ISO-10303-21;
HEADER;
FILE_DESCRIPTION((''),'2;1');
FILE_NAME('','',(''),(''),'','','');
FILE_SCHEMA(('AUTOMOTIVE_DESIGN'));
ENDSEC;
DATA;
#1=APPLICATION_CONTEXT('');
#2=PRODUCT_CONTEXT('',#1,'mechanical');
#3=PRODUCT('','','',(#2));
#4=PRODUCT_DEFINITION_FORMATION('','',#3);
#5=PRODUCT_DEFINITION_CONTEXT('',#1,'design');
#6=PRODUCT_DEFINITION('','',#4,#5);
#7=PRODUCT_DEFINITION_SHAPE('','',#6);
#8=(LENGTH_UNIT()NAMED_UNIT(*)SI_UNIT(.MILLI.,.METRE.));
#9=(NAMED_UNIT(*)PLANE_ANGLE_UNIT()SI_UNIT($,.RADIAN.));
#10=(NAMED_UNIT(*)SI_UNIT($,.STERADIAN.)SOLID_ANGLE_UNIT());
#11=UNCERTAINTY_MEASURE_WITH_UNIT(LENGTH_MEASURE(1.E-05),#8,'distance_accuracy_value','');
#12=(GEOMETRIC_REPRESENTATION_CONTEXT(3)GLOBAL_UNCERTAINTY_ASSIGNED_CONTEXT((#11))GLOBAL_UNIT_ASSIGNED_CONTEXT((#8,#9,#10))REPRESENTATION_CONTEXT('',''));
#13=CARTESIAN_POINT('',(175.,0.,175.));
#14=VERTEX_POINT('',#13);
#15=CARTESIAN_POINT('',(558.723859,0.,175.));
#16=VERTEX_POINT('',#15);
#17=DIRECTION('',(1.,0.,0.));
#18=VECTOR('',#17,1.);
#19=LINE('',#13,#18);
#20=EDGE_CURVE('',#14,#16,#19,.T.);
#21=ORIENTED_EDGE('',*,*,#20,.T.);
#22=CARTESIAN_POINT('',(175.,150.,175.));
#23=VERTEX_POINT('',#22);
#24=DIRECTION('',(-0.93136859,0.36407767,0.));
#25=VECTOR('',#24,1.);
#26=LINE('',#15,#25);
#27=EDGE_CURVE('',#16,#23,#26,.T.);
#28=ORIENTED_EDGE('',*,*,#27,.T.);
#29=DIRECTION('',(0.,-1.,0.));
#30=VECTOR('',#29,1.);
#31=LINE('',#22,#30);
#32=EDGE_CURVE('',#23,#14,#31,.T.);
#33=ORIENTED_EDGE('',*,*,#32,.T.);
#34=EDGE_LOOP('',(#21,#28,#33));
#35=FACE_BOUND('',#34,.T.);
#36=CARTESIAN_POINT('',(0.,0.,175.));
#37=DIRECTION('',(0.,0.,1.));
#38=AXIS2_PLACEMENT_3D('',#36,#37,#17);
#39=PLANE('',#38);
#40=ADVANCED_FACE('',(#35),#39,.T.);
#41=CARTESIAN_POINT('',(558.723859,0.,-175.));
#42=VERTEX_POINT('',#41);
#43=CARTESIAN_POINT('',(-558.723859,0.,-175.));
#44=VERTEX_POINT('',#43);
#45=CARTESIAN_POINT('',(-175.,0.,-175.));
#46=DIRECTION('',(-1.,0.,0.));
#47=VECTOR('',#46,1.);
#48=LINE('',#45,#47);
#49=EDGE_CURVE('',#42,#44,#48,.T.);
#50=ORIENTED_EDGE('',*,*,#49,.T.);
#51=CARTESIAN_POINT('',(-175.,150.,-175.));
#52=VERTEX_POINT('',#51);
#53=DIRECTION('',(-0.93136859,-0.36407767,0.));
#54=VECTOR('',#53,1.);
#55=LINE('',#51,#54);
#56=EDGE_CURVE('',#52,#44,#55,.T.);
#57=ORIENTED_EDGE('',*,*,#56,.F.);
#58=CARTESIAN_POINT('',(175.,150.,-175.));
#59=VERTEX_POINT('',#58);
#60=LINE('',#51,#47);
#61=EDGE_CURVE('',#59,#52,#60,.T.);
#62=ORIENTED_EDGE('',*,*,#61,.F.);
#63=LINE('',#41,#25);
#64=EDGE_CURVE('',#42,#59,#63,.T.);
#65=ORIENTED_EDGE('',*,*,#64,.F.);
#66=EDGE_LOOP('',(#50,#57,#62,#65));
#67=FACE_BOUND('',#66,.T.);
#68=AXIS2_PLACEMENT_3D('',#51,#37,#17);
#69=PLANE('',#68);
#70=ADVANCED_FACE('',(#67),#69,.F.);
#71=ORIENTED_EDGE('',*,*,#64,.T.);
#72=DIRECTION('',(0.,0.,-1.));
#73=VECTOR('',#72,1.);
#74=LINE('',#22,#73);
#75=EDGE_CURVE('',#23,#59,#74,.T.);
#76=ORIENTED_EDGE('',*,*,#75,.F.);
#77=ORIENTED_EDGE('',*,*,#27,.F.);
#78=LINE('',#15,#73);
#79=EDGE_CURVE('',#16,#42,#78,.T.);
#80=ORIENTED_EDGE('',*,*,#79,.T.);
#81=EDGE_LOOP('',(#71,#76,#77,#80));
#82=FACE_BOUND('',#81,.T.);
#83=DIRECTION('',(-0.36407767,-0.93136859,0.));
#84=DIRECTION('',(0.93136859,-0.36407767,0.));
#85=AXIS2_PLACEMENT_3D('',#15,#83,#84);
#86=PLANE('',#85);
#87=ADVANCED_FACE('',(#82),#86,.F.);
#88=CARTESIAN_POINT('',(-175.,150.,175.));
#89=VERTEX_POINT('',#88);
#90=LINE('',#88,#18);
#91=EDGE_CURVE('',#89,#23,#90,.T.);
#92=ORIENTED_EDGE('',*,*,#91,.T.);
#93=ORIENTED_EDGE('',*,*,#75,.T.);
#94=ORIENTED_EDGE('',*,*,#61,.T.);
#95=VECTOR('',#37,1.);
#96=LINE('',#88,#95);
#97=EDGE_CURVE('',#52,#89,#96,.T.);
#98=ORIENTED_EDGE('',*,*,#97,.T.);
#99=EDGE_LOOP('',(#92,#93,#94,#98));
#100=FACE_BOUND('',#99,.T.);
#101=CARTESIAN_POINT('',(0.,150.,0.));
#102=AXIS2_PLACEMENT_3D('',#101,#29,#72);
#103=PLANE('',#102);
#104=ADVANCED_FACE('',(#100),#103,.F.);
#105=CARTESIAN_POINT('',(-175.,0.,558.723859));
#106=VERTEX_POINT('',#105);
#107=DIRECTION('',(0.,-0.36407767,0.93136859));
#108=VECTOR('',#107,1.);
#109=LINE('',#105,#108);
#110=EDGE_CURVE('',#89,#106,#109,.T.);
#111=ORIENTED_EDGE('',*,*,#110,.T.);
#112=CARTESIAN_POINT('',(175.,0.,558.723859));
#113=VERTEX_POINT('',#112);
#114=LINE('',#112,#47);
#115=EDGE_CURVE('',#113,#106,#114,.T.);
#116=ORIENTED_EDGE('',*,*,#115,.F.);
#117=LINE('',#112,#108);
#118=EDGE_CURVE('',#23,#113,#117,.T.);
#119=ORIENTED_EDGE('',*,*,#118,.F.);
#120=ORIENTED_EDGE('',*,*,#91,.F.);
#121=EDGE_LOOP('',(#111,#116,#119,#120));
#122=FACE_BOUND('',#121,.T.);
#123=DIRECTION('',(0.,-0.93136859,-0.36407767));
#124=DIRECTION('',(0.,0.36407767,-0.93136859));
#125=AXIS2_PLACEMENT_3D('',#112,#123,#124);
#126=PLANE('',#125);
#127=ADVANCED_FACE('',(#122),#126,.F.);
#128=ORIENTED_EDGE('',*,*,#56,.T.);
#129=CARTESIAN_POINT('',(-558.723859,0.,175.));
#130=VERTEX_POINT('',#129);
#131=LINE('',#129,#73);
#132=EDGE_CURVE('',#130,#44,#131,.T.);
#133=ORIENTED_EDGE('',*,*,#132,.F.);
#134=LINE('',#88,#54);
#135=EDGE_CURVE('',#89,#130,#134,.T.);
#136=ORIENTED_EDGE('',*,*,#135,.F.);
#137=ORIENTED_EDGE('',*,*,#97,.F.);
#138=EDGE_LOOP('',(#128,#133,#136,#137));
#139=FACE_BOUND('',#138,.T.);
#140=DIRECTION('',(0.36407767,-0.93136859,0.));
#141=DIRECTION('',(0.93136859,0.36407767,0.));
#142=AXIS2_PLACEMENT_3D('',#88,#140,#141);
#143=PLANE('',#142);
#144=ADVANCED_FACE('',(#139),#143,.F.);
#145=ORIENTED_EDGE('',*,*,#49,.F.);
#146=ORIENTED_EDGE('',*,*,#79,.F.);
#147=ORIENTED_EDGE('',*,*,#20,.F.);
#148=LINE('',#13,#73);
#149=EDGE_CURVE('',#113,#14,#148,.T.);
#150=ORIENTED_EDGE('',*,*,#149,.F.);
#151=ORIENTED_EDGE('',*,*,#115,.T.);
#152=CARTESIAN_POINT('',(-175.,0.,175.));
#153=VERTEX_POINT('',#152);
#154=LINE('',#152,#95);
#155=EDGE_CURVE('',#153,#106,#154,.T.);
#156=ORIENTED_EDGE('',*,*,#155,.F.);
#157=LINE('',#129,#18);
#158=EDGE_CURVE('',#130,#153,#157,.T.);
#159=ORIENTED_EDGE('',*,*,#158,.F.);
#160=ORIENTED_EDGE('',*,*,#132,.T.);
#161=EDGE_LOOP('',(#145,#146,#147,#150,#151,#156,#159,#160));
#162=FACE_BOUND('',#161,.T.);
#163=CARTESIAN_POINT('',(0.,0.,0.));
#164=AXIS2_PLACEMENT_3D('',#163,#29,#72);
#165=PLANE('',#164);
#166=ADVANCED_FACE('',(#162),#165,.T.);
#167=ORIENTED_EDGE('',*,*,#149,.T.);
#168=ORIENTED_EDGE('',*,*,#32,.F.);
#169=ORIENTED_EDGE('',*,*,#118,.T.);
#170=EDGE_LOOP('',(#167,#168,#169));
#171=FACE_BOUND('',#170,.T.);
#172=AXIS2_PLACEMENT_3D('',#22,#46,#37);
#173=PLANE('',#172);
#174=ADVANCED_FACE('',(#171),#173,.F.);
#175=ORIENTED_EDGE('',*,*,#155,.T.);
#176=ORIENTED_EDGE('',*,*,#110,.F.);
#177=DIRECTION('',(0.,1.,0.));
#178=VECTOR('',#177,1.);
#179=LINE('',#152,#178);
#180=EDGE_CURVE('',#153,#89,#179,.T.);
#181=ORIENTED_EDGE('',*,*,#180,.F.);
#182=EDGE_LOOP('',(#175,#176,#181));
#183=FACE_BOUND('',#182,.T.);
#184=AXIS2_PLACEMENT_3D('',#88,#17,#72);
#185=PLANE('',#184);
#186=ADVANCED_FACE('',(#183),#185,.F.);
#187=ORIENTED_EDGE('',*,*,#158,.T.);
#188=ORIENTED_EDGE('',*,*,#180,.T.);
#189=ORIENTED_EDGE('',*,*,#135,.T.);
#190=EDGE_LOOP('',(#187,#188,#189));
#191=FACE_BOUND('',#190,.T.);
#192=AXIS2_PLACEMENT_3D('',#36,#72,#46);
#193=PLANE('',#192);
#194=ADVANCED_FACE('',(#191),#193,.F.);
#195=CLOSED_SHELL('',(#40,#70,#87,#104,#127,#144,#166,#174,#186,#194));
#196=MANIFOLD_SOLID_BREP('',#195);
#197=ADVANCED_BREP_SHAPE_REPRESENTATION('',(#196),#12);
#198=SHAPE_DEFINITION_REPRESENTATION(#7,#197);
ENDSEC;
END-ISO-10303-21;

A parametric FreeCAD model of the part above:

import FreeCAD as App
import Part
import Sketcher

V = App.Vector


def add_polygon(sketch, points):
    """Adds a closed chain of lines whose ends are joined by coincident constraints."""
    first, n = sketch.GeometryCount, len(points)
    for a, b in zip(points, points[1:] + points[:1]):
        sketch.addGeometry(Part.LineSegment(App.Vector(*a, 0), App.Vector(*b, 0)), False)
    for i in range(n):
        sketch.addConstraint(Sketcher.Constraint("Coincident", first + i, 2, first + (i + 1) % n, 1))

doc = App.newDocument("Part")
body = doc.addObject("PartDesign::Body", "Body")

# Sketch on XZ plane
sketch1 = doc.addObject("Sketcher::SketchObject", "Sketch")
body.addObject(sketch1)
sketch1.AttachmentSupport = (doc.XZ_Plane, [""])
sketch1.MapMode = "FlatFace"
add_polygon(sketch1, [(-175, -175), (-175, 175), (175, 175), (175, -175)])  # lines 0-3
sketch1.addConstraint(Sketcher.Constraint("Vertical", 0))
sketch1.addConstraint(Sketcher.Constraint("Horizontal", 1))
sketch1.addConstraint(Sketcher.Constraint("Vertical", 2))
sketch1.addConstraint(Sketcher.Constraint("Horizontal", 3))
sketch1.addConstraint(Sketcher.Constraint("Symmetric", 0, 2, 2, 2, -1, 1))
sketch1.addConstraint(Sketcher.Constraint("Equal", 3, 0))
sketch1.addConstraint(Sketcher.Constraint("DistanceX", 1, 1, 1, 2, 350.0))
pad1 = doc.addObject("PartDesign::Pad", "Pad")
body.addObject(pad1)
pad1.Profile = sketch1
pad1.Length = 150
pad1.Reversed = True

# Sketch on YZ plane
sketch2 = doc.addObject("Sketcher::SketchObject", "Sketch001")
body.addObject(sketch2)
sketch2.AttachmentSupport = (doc.YZ_Plane, [""])
sketch2.MapMode = "FlatFace"
add_polygon(sketch2, [(0, 175), (150, 175), (0, 559)])  # lines 0-2
sketch2.addConstraint(Sketcher.Constraint("Horizontal", 0))
sketch2.addConstraint(Sketcher.Constraint("Vertical", 2))
sketch2.addConstraint(Sketcher.Constraint("PointOnObject", 1, 2, -2))
sketch2.addConstraint(Sketcher.Constraint("DistanceX", 0, 1, 0, 2, 150.0))
sketch2.addConstraint(Sketcher.Constraint("Distance", 1, 412.0))
sketch2.addConstraint(Sketcher.Constraint("DistanceY", -1, 1, 0, 2, 175.0))
pad2 = doc.addObject("PartDesign::Pad", "Pad001")
body.addObject(pad2)
pad2.Profile = sketch2
pad2.Length = 350
pad2.Midplane = True

# Sketch on XY plane
sketch3 = doc.addObject("Sketcher::SketchObject", "Sketch002")
body.addObject(sketch3)
sketch3.AttachmentSupport = (doc.XY_Plane, [""])
sketch3.MapMode = "FlatFace"
add_polygon(sketch3, [(-175, 150), (-559, 0), (-175, 0)])  # lines 0-2
add_polygon(sketch3, [(175, 150), (175, 0), (559, 0)])  # lines 3-5
sketch3.addConstraint(Sketcher.Constraint("Horizontal", 1))
sketch3.addConstraint(Sketcher.Constraint("Vertical", 2))
sketch3.addConstraint(Sketcher.Constraint("Vertical", 3))
sketch3.addConstraint(Sketcher.Constraint("Horizontal", 4))
sketch3.addConstraint(Sketcher.Constraint("Symmetric", 1, 2, 3, 2, -1, 1))
sketch3.addConstraint(Sketcher.Constraint("Symmetric", 0, 2, 4, 2, -2))
sketch3.addConstraint(Sketcher.Constraint("Horizontal", 2, 2, 5, 2))
sketch3.addConstraint(Sketcher.Constraint("DistanceY", 2, 1, 2, 2, 150.0))
sketch3.addConstraint(Sketcher.Constraint("Distance", 0, 412.0))
sketch3.addConstraint(Sketcher.Constraint("DistanceX", 1, 2, -1, 1, 175.0))
pad3 = doc.addObject("PartDesign::Pad", "Pad002")
body.addObject(pad3)
pad3.Profile = sketch3
pad3.Length = 350
pad3.Midplane = True

doc.recompute()
